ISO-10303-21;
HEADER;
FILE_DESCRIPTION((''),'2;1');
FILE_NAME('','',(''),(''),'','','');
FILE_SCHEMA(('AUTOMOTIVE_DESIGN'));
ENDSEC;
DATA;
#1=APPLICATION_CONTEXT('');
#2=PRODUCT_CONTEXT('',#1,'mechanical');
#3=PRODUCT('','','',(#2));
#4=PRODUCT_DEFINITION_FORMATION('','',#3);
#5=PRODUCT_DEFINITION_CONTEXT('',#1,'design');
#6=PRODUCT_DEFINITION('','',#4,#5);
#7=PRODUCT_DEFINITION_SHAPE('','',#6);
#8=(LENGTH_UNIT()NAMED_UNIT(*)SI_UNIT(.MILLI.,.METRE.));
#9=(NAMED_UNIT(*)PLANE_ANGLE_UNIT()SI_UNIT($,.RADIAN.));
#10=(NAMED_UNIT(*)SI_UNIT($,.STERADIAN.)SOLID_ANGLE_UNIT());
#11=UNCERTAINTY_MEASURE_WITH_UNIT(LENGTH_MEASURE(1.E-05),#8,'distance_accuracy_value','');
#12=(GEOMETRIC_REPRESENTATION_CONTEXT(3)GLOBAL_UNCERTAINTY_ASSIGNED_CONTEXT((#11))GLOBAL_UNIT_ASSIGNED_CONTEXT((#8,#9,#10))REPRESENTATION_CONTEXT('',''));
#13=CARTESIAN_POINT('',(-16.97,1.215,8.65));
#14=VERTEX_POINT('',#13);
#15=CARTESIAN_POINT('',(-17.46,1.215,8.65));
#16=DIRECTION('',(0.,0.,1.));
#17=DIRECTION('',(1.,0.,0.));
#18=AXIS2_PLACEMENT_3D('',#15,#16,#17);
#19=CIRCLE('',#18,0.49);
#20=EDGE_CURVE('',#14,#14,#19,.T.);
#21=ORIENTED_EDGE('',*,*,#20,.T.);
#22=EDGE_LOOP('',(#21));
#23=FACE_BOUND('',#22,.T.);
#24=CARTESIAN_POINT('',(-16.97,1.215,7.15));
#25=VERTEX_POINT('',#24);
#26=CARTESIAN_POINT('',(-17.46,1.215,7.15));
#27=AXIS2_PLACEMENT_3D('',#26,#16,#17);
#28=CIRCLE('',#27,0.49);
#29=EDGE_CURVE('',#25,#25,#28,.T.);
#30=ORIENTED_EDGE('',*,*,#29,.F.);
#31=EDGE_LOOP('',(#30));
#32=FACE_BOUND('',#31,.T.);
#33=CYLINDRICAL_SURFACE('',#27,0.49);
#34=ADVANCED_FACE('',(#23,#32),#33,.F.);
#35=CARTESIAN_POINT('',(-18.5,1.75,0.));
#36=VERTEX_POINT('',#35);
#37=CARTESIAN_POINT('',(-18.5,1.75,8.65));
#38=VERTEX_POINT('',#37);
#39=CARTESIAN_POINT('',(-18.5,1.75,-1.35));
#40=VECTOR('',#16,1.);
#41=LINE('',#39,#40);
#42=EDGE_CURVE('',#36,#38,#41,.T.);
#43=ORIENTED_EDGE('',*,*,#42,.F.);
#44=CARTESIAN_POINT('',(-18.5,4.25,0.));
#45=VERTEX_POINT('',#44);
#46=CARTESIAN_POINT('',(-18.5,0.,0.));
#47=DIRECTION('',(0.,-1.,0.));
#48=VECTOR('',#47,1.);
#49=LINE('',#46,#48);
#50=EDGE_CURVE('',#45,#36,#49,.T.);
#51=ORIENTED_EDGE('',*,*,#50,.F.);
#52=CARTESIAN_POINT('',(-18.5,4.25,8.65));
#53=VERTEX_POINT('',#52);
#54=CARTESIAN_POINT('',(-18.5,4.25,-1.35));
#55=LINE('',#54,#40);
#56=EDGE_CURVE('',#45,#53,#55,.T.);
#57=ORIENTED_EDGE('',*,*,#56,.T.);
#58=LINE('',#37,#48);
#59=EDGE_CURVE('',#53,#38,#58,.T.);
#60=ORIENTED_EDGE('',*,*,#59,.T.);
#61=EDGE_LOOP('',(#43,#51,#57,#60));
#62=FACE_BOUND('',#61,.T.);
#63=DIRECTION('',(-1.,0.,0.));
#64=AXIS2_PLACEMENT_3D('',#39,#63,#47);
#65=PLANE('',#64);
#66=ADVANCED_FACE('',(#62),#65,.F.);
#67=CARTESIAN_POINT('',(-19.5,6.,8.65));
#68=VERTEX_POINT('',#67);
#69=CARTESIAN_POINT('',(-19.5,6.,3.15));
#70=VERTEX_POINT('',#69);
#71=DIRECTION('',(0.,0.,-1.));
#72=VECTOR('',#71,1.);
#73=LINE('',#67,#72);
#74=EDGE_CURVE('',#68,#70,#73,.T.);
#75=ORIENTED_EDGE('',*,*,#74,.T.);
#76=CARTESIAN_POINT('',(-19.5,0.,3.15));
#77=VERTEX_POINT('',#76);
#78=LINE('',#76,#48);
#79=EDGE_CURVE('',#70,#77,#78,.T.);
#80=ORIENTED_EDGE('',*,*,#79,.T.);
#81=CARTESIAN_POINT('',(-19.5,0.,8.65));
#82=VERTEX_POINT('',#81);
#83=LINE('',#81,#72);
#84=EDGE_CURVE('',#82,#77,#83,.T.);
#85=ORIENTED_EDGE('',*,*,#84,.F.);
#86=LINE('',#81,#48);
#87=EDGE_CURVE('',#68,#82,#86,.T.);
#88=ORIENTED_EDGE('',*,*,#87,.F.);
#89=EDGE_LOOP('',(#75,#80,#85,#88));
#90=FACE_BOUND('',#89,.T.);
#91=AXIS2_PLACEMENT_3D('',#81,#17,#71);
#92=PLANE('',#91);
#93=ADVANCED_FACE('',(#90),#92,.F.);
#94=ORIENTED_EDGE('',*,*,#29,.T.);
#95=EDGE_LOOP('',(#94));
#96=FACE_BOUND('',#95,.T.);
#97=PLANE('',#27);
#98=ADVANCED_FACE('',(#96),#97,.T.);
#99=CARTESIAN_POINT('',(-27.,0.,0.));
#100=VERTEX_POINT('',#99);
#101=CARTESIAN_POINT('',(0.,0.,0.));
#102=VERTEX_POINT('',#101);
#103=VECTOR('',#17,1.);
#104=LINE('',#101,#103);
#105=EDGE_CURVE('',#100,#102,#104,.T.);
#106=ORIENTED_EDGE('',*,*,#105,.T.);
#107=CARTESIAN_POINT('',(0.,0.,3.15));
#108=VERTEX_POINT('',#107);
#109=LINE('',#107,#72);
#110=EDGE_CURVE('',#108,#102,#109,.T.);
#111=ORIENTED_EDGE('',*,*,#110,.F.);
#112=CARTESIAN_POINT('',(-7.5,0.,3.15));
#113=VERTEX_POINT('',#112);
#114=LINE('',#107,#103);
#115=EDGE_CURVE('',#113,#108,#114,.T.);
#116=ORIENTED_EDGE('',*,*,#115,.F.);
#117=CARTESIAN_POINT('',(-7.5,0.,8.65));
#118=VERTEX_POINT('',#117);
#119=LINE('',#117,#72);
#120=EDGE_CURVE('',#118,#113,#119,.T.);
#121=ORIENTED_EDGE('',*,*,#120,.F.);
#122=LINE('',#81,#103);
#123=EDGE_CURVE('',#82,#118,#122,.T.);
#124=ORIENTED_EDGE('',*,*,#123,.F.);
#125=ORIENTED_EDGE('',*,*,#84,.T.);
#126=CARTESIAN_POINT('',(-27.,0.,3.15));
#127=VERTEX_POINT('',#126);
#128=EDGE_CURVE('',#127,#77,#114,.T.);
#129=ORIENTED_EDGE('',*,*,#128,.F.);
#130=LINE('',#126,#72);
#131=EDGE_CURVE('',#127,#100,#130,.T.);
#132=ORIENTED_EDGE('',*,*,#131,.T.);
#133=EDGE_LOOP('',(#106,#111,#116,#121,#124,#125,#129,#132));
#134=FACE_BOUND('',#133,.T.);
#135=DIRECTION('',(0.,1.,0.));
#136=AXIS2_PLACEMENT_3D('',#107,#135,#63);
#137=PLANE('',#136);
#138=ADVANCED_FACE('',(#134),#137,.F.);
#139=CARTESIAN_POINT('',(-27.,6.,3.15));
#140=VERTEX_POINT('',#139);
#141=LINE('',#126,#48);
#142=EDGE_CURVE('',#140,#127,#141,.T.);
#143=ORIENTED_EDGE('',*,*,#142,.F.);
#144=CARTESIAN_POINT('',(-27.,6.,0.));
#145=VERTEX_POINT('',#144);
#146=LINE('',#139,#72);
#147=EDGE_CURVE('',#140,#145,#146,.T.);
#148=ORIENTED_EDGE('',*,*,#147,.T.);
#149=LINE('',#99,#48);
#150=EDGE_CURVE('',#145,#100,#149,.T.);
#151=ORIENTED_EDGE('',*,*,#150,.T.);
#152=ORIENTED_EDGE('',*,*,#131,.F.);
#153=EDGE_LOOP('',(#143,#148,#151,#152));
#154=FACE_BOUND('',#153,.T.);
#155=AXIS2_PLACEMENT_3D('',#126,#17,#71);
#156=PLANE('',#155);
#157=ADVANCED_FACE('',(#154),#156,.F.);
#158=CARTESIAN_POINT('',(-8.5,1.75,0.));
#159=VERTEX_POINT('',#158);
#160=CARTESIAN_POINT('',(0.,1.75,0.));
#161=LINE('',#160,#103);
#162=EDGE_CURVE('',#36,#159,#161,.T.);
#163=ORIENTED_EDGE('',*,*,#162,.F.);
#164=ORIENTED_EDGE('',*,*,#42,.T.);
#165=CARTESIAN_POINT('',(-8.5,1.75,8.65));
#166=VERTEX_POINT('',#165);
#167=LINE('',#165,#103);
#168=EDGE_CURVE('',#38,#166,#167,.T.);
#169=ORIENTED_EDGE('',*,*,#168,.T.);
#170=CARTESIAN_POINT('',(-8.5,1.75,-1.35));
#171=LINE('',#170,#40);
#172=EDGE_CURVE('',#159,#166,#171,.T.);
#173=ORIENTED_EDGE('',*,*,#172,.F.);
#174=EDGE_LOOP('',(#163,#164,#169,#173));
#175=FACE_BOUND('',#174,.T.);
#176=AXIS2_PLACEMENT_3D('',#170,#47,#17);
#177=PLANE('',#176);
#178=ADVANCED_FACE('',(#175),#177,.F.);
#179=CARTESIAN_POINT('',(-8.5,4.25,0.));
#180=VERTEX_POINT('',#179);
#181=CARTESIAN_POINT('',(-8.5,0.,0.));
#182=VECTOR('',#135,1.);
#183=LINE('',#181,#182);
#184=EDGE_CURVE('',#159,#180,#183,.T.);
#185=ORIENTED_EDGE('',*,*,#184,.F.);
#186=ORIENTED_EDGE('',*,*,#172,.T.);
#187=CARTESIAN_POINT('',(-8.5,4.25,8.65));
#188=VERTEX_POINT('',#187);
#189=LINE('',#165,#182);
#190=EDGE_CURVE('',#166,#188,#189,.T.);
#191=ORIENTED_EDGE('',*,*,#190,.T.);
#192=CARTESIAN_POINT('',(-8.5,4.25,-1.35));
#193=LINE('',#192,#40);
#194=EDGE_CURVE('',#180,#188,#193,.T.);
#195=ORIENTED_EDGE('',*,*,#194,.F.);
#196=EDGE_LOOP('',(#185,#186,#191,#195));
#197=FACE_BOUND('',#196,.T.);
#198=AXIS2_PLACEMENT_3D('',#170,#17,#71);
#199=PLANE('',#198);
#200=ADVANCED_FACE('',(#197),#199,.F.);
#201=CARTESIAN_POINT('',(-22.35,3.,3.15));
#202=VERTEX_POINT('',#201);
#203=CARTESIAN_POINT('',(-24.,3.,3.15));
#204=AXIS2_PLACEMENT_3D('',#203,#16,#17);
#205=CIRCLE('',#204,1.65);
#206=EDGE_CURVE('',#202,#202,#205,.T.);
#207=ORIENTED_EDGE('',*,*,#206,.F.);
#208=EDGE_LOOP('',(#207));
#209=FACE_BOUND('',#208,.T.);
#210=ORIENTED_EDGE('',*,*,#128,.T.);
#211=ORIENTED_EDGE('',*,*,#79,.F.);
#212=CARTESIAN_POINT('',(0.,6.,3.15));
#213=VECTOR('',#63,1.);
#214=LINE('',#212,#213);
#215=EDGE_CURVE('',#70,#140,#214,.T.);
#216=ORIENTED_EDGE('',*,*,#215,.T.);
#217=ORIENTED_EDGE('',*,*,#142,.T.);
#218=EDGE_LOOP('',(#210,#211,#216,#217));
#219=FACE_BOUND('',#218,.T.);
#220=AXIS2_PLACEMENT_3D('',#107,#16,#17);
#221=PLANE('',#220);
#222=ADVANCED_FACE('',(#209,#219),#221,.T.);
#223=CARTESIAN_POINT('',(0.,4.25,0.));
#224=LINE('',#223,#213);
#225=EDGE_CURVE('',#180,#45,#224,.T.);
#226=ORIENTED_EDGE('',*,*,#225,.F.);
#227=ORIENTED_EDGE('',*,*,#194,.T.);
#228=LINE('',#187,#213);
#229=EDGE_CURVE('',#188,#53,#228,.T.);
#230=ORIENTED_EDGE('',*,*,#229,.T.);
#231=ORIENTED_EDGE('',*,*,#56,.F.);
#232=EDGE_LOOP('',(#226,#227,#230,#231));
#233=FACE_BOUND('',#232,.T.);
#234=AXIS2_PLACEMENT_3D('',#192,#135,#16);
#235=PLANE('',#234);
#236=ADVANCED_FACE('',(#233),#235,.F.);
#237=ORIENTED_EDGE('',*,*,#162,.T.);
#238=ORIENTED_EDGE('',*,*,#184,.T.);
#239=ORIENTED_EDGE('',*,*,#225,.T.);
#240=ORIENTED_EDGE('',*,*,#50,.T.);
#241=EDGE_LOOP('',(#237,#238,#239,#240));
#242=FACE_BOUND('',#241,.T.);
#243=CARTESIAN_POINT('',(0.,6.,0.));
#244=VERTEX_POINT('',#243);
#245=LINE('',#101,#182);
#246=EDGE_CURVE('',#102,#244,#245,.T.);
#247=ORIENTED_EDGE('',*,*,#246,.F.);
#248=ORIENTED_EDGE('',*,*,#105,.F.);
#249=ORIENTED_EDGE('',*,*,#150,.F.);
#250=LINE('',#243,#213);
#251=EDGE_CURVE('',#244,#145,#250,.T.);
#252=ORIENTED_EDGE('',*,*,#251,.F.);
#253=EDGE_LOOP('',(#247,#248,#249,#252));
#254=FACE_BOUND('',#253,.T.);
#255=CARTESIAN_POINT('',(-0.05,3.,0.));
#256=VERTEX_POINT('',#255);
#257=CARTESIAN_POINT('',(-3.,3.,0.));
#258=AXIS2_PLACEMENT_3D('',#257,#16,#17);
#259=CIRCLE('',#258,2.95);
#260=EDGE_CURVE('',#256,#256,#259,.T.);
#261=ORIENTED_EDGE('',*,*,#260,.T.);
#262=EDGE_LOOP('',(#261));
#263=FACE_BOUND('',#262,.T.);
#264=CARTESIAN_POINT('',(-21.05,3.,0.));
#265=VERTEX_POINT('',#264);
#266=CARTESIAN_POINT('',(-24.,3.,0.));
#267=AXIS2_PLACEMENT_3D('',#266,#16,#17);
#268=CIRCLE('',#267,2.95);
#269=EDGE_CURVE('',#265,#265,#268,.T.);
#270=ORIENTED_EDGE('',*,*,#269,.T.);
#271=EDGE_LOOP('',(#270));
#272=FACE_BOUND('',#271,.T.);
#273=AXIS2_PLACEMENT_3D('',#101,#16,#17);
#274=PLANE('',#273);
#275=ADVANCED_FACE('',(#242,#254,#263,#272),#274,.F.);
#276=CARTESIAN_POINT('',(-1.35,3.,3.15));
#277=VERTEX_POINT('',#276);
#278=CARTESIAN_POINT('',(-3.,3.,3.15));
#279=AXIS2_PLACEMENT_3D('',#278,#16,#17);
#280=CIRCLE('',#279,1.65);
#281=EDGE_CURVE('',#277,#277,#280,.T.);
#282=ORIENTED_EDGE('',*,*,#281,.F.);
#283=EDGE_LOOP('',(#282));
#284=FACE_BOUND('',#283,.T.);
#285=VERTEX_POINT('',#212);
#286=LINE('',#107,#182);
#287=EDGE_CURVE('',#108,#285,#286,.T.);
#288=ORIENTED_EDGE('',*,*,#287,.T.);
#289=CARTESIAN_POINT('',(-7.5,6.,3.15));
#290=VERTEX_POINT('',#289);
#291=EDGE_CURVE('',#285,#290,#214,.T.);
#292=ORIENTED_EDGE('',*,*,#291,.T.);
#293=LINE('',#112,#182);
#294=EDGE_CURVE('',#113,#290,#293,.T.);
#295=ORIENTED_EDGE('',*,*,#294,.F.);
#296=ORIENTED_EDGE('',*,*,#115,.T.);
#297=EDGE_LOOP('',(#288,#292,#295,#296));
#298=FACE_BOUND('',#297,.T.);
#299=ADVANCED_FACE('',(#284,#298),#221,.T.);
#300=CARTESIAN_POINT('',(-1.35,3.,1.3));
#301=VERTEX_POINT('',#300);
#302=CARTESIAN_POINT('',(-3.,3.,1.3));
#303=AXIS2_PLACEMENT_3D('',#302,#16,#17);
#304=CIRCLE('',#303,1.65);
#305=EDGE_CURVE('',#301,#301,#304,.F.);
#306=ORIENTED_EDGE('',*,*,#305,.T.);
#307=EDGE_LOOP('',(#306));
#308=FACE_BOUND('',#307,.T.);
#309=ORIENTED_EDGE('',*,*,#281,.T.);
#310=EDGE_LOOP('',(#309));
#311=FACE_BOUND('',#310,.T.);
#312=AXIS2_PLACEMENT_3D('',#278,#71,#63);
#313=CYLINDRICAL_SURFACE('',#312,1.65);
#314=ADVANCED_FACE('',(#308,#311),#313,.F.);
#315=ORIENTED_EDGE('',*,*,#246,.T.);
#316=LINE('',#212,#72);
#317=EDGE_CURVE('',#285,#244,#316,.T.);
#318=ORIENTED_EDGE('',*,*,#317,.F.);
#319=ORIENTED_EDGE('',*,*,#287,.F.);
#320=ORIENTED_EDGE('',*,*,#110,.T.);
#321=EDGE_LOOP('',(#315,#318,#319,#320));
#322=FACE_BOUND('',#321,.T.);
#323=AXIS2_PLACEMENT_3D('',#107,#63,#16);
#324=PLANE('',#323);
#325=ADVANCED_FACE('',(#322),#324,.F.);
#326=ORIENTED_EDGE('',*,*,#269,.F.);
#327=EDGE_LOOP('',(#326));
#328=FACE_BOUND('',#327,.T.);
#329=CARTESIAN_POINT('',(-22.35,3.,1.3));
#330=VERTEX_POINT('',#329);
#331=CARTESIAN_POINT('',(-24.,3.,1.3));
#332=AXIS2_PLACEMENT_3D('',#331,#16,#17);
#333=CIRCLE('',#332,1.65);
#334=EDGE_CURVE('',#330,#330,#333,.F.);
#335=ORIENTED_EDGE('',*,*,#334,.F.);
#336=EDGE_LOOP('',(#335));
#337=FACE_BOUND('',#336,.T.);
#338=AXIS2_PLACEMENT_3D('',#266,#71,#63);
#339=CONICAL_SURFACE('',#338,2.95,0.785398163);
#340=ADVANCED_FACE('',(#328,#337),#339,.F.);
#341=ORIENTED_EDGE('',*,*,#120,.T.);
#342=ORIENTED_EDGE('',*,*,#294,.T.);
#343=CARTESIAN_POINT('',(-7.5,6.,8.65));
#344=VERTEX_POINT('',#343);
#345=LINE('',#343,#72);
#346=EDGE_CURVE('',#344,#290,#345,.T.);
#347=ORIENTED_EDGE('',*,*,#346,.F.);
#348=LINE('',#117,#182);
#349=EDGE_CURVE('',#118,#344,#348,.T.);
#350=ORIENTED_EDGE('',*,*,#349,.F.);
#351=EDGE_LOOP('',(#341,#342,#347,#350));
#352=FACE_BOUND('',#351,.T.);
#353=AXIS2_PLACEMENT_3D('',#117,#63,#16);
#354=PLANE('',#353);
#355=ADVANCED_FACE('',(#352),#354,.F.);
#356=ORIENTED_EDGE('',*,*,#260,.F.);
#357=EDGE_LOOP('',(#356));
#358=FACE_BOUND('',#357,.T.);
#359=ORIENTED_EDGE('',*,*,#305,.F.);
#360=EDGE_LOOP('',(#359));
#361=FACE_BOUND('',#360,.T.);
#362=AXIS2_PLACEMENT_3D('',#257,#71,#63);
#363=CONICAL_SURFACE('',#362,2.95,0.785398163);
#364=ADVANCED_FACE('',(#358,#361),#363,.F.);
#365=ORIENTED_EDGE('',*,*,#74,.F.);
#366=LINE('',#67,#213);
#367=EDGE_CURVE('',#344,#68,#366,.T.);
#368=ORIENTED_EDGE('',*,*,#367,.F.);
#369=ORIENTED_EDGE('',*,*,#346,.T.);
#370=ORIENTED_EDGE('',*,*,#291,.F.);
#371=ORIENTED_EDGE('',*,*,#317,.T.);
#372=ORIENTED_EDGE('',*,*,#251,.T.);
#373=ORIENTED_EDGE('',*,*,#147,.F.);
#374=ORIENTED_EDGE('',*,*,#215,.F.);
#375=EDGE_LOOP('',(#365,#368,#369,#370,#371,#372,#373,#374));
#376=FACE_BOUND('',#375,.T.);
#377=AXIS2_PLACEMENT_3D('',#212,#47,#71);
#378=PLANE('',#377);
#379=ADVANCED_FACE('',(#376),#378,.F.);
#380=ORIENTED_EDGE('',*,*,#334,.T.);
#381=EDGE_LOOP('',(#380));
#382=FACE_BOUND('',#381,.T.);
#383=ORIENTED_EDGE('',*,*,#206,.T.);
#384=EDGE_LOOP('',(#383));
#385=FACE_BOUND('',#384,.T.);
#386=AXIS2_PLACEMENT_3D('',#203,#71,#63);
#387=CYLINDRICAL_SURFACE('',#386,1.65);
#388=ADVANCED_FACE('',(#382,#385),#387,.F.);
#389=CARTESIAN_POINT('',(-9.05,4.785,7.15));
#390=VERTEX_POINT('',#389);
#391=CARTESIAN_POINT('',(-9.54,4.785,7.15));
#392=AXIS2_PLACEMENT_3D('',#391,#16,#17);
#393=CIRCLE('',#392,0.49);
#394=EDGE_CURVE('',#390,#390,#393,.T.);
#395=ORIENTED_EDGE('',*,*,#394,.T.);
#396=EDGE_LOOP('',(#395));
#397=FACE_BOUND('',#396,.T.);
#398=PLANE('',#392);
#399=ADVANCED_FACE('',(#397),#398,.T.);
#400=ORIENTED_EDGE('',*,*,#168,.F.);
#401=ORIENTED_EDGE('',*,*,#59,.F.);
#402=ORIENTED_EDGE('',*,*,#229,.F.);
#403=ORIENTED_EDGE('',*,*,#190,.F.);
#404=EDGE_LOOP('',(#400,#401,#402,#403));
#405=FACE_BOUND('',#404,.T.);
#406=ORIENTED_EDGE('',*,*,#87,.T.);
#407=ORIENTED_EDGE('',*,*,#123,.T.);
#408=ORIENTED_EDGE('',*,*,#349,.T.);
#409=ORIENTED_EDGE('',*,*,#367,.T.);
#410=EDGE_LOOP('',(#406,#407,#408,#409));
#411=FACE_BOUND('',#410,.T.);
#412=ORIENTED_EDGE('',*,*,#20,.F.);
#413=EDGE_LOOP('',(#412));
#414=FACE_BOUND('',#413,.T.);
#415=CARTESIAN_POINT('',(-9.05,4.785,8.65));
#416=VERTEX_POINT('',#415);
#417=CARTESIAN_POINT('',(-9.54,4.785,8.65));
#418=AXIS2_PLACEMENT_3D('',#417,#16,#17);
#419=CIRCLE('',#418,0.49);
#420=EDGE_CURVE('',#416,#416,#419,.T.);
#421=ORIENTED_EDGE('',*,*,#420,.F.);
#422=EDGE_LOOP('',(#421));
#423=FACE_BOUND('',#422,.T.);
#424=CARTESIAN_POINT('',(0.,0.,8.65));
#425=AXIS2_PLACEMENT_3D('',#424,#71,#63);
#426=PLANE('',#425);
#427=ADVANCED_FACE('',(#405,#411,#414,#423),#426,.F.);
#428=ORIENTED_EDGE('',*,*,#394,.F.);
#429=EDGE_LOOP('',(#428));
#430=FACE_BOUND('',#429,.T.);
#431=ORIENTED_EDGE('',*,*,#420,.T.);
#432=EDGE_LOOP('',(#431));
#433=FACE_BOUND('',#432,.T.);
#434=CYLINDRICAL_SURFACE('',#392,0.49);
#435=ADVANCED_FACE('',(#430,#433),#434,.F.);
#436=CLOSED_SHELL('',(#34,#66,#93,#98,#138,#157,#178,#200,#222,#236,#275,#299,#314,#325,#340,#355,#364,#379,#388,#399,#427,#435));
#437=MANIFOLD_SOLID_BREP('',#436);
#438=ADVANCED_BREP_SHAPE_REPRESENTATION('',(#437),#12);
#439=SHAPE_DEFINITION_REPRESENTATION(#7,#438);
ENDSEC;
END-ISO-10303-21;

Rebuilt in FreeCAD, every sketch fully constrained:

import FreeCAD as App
import Part
import Sketcher

V = App.Vector


def edges_at(feature, points):
    """Names of the edges that pass closest to the given points."""
    edges = feature.Shape.Edges
    near = lambda p: min(range(len(edges)), key=lambda i: edges[i].distToShape(Part.Vertex(*p))[0])
    return sorted({f"Edge{near(p) + 1}" for p in points})


def add_polygon(sketch, points):
    """Adds a closed chain of lines whose ends are joined by coincident constraints."""
    first, n = sketch.GeometryCount, len(points)
    for a, b in zip(points, points[1:] + points[:1]):
        sketch.addGeometry(Part.LineSegment(App.Vector(*a, 0), App.Vector(*b, 0)), False)
    for i in range(n):
        sketch.addConstraint(Sketcher.Constraint("Coincident", first + i, 2, first + (i + 1) % n, 1))

doc = App.newDocument("Part")
params = doc.addObject("Spreadsheet::Sheet", "Params")
for row, (alias, value) in enumerate([
    ("sketch1_diameter", "3.3 mm"),
    ("sketch1_width", "27 mm"),
    ("sketch1_height", "6 mm"),
    ("pad1_length", "3.15 mm"),
    ("sketch2_width", "12 mm"),
    ("sketch2_height", "6 mm"),
    ("pad2_length", "5.5 mm"),
    ("sketch3_width", "10 mm"),
    ("sketch3_height", "2.5 mm"),
    ("pocket1_length", "10 mm"),
    ("sketch4_diameter", "0.98 mm"),
    ("pocket2_length", "1.5 mm"),
    ("chamfer_size", "1.3 mm"),
], start=1):
    params.set(f"A{row}", alias)
    params.set(f"B{row}", "=" + value)
    params.setAlias(f"B{row}", alias)

body = doc.addObject("PartDesign::Body", "Body")

sketch1 = doc.addObject("Sketcher::SketchObject", "Sketch")
body.addObject(sketch1)
sketch1.AttachmentSupport = (doc.XY_Plane, [""])
sketch1.MapMode = "FlatFace"
add_polygon(sketch1, [(-27, 6), (-27, 0), (0, 0), (0, 6)])
sketch1.addGeometry(Part.Circle(V(-24, 3, 0), V(0, 0, 1), 1.65), False)
sketch1.addGeometry(Part.Circle(V(-3, 3, 0), V(0, 0, 1), 1.65), False)
sketch1.addConstraint([
    Sketcher.Constraint("Vertical", 0),
    Sketcher.Constraint("Horizontal", 1),
    Sketcher.Constraint("Vertical", 2),
    Sketcher.Constraint("Horizontal", 3),
    Sketcher.Constraint("Coincident", 1, 2, -1, 1),
    Sketcher.Constraint("Equal", 4, 5),
    Sketcher.Constraint("Horizontal", 4, 3, 5, 3),
    Sketcher.Constraint("Diameter", 4, 3.3),
    Sketcher.Constraint("DistanceX", 1, 1, 1, 2, 27.0),
    Sketcher.Constraint("DistanceY", 0, 2, 0, 1, 6.0),
    Sketcher.Constraint("DistanceX", 4, 3, -1, 1, 24.0),
    Sketcher.Constraint("DistanceY", -1, 1, 4, 3, 3.0),
    Sketcher.Constraint("DistanceX", 5, 3, -1, 1, 3.0),
])
sketch1.setExpression("Constraints[11]", "Params.sketch1_diameter")
sketch1.setExpression("Constraints[12]", "Params.sketch1_width")
sketch1.setExpression("Constraints[13]", "Params.sketch1_height")
pad1 = doc.addObject("PartDesign::Pad", "Pad")
body.addObject(pad1)
pad1.Profile = sketch1
pad1.setExpression("Length", "Params.pad1_length")

sketch2 = doc.addObject("Sketcher::SketchObject", "Sketch001")
body.addObject(sketch2)
sketch2.AttachmentSupport = (doc.XY_Plane, [""])
sketch2.MapMode = "FlatFace"
sketch2.AttachmentOffset = App.Placement(V(0, 0, 3.15), App.Rotation())
add_polygon(sketch2, [(-19.5, 6), (-19.5, 0), (-7.5, 0), (-7.5, 6)])
sketch2.addConstraint([
    Sketcher.Constraint("Vertical", 0),
    Sketcher.Constraint("Horizontal", 1),
    Sketcher.Constraint("Vertical", 2),
    Sketcher.Constraint("Horizontal", 3),
    Sketcher.Constraint("PointOnObject", 0, 2, -1),
    Sketcher.Constraint("DistanceX", 1, 1, 1, 2, 12.0),
    Sketcher.Constraint("DistanceY", 0, 2, 0, 1, 6.0),
    Sketcher.Constraint("DistanceX", 0, 2, -1, 1, 19.5),
])
sketch2.setExpression("Constraints[9]", "Params.sketch2_width")
sketch2.setExpression("Constraints[10]", "Params.sketch2_height")
pad2 = doc.addObject("PartDesign::Pad", "Pad001")
body.addObject(pad2)
pad2.Profile = sketch2
pad2.setExpression("Length", "Params.pad2_length")

sketch3 = doc.addObject("Sketcher::SketchObject", "Sketch002")
body.addObject(sketch3)
sketch3.AttachmentSupport = (doc.XY_Plane, [""])
sketch3.MapMode = "FlatFace"
sketch3.AttachmentOffset = App.Placement(V(0, 0, 8.65), App.Rotation())
add_polygon(sketch3, [(-18.5, 4.25), (-18.5, 1.75), (-8.5, 1.75), (-8.5, 4.25)])
sketch3.addConstraint([
    Sketcher.Constraint("Vertical", 0),
    Sketcher.Constraint("Horizontal", 1),
    Sketcher.Constraint("Vertical", 2),
    Sketcher.Constraint("Horizontal", 3),
    Sketcher.Constraint("DistanceX", 1, 1, 1, 2, 10.0),
    Sketcher.Constraint("DistanceY", 0, 2, 0, 1, 2.5),
    Sketcher.Constraint("DistanceX", 0, 2, -1, 1, 18.5),
    Sketcher.Constraint("DistanceY", -1, 1, 0, 2, 1.75),
])
sketch3.setExpression("Constraints[8]", "Params.sketch3_width")
sketch3.setExpression("Constraints[9]", "Params.sketch3_height")
pocket1 = doc.addObject("PartDesign::Pocket", "Pocket")
body.addObject(pocket1)
pocket1.Profile = sketch3
pocket1.setExpression("Length", "Params.pocket1_length")

sketch4 = doc.addObject("Sketcher::SketchObject", "Sketch003")
body.addObject(sketch4)
sketch4.AttachmentSupport = (doc.XY_Plane, [""])
sketch4.MapMode = "FlatFace"
sketch4.AttachmentOffset = App.Placement(V(0, 0, 8.65), App.Rotation())
sketch4.addGeometry([
    Part.Circle(V(-9.54, 4.785, 0), V(0, 0, 1), 0.49),
    Part.Circle(V(-17.46, 1.215, 0), V(0, 0, 1), 0.49),
], False)
sketch4.addConstraint([
    Sketcher.Constraint("Equal", 0, 1),
    Sketcher.Constraint("Diameter", 0, 0.98),
    Sketcher.Constraint("DistanceX", 0, 3, -1, 1, 9.54),
    Sketcher.Constraint("DistanceX", 1, 3, -1, 1, 17.46),
    Sketcher.Constraint("DistanceY", 1, 3, 0, 3, 3.57),
    Sketcher.Constraint("DistanceY", -1, 1, 0, 3, 4.785),
])
sketch4.setExpression("Constraints[1]", "Params.sketch4_diameter")
pocket2 = doc.addObject("PartDesign::Pocket", "Pocket001")
body.addObject(pocket2)
pocket2.Profile = sketch4
pocket2.setExpression("Length", "Params.pocket2_length")
doc.recompute()

chamfer = doc.addObject("PartDesign::Chamfer", "Chamfer")
body.addObject(chamfer)
chamfer.Base = (pocket2, edges_at(pocket2, [(-4.65, 3, 0), (-25.65, 3, 0)]))
chamfer.setExpression("Size", "Params.chamfer_size")

doc.recompute()
